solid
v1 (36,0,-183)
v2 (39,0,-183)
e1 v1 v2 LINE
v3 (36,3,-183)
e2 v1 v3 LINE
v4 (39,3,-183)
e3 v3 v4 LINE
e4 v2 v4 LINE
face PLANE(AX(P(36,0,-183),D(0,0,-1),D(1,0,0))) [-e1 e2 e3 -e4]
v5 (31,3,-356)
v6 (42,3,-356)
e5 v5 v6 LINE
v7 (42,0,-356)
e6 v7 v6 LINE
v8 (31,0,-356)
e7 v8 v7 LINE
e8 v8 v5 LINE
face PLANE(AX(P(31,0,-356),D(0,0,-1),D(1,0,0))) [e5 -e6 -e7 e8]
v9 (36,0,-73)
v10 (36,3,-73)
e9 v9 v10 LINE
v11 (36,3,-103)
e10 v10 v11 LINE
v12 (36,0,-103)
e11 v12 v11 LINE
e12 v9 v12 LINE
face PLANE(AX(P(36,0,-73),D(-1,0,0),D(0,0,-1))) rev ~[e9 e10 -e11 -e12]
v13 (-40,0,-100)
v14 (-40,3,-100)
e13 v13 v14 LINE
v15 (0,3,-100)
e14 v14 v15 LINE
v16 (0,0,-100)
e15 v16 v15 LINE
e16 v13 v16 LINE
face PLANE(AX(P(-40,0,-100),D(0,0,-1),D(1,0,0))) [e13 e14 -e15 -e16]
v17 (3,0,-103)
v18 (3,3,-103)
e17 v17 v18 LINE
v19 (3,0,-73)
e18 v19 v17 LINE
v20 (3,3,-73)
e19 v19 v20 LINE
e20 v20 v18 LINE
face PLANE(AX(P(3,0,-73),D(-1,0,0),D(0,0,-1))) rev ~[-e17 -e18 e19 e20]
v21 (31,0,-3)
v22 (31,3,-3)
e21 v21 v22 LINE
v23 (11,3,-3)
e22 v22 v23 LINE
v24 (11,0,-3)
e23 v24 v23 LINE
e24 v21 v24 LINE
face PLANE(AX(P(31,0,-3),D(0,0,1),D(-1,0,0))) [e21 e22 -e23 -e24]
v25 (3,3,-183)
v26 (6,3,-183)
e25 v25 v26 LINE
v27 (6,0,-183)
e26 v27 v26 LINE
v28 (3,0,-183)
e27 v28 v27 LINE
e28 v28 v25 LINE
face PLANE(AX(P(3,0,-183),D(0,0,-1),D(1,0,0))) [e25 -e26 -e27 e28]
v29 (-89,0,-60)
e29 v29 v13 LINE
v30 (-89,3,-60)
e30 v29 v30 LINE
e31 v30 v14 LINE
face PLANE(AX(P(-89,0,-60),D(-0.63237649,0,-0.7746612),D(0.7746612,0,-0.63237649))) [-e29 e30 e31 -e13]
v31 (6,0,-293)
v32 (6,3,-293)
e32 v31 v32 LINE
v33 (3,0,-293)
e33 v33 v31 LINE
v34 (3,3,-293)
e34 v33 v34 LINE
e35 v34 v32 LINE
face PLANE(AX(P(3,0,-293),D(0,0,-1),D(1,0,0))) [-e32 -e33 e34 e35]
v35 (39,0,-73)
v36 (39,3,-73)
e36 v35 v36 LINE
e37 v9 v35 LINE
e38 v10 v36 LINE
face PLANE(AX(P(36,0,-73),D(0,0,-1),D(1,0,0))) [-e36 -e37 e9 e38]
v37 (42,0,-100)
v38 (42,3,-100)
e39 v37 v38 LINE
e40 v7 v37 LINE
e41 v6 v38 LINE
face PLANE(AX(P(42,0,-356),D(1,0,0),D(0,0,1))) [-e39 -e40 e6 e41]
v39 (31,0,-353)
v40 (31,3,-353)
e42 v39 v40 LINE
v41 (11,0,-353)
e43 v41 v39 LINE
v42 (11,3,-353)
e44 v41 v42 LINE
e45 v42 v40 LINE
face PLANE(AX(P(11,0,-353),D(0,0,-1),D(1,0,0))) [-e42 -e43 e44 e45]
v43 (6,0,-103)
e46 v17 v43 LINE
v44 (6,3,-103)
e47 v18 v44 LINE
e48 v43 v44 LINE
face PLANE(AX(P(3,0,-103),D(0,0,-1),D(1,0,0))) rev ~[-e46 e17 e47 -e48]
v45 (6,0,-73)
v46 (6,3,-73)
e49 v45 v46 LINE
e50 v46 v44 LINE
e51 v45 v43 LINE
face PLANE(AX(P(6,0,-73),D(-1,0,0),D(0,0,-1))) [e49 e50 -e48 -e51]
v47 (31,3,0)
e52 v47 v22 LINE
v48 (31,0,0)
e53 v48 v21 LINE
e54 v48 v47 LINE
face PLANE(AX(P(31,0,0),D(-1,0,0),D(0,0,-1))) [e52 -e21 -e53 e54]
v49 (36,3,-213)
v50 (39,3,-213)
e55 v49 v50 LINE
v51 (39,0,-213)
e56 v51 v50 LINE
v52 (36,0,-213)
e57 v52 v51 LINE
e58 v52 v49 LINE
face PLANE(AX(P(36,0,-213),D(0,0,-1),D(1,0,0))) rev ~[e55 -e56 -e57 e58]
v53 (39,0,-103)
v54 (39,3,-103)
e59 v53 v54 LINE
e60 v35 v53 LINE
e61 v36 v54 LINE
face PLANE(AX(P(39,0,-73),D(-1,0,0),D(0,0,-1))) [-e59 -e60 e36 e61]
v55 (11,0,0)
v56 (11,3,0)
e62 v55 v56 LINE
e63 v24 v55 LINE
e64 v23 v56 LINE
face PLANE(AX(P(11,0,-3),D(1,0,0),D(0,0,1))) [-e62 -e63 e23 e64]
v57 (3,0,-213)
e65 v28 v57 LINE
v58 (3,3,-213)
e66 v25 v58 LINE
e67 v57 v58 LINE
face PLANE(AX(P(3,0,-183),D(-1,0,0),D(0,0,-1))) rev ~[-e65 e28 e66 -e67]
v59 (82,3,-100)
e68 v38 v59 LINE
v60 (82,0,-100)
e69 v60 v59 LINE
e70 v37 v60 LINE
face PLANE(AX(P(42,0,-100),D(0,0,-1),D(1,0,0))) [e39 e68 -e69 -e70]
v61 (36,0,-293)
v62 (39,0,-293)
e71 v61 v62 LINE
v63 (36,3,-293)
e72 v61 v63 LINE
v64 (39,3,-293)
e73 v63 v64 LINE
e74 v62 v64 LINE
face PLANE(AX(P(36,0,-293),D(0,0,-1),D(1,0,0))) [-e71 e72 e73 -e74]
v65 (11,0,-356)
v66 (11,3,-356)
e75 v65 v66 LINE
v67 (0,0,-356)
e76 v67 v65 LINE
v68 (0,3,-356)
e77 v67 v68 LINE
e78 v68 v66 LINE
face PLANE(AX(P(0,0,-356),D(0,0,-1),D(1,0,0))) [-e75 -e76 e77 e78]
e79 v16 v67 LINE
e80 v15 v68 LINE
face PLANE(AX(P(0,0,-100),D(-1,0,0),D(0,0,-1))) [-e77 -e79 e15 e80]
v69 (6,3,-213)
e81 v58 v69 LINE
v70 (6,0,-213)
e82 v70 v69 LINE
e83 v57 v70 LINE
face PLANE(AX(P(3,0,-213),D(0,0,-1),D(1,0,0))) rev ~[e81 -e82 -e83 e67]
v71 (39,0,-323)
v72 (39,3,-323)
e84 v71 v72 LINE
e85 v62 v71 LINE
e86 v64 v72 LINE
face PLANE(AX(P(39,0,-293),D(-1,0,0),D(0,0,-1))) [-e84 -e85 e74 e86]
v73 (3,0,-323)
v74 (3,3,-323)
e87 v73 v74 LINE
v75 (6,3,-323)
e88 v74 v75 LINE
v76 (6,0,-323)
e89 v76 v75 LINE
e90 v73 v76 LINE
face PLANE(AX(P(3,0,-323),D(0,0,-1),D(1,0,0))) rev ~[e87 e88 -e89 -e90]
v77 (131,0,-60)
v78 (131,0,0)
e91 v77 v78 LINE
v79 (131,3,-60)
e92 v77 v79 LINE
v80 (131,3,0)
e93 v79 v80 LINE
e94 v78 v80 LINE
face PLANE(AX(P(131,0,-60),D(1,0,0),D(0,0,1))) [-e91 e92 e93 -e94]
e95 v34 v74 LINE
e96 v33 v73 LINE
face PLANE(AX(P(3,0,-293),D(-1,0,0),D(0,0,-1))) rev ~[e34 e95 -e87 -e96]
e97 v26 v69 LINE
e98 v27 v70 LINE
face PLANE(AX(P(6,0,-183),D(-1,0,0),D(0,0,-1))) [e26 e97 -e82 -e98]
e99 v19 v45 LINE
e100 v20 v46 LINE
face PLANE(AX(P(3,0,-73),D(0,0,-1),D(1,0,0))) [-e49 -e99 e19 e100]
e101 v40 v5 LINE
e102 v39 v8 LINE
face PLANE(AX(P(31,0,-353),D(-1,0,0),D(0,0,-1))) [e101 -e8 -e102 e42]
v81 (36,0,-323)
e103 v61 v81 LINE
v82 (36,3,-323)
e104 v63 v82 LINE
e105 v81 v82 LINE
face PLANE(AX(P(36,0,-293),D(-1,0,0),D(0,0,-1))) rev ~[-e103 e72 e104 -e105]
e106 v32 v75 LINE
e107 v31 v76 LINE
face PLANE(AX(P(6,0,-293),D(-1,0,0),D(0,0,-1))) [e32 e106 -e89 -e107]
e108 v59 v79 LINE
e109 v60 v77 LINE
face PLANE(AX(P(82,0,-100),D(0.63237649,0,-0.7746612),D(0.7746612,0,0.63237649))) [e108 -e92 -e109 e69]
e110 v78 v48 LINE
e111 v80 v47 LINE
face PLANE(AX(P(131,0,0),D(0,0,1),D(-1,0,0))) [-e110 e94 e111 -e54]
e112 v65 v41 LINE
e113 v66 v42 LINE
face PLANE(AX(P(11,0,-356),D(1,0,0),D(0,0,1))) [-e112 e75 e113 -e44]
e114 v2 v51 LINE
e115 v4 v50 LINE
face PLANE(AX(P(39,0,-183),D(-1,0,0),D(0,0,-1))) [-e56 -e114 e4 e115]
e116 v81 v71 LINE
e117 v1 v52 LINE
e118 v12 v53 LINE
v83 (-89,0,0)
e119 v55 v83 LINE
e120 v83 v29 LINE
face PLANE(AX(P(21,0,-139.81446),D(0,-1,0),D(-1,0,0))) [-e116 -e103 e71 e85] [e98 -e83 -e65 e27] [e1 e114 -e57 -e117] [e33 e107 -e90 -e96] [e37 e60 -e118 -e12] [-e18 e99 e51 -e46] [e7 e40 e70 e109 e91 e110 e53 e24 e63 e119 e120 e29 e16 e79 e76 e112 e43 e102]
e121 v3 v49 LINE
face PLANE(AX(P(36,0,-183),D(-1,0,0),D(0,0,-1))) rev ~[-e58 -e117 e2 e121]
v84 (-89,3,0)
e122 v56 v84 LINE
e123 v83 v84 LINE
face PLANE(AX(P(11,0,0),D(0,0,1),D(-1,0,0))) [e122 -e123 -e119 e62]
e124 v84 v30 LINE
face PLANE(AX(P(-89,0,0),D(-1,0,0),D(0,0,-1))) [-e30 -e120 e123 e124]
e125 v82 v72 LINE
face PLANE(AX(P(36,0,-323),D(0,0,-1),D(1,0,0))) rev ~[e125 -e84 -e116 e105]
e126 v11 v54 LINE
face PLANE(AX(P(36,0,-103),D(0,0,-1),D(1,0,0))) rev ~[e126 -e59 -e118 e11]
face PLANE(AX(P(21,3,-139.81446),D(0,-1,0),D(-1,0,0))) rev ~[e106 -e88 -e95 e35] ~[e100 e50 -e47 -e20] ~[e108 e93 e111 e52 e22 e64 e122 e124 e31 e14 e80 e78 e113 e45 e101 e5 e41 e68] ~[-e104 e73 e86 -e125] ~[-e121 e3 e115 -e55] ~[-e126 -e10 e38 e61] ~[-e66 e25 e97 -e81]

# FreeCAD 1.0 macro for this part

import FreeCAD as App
import Part
import Sketcher
Q = App.Units.Quantity

doc = App.newDocument("Part")
body = doc.addObject("PartDesign::Body", "Body")

# Sketch on XZ plane
sketch1 = body.newObject("Sketcher::SketchObject", "Sketch")
sketch1.AttachmentSupport = (doc.getObject("XZ_Plane"), [""])
sketch1.MapMode = "FlatFace"
sketch1.addGeometry([
    Part.LineSegment(App.Vector(0, -356, 0), App.Vector(0, -100, 0)),  # 0
    Part.LineSegment(App.Vector(0, -100, 0), App.Vector(-40, -100, 0)),  # 1
    Part.LineSegment(App.Vector(-40, -100, 0), App.Vector(-89, -60, 0)),  # 2
    Part.LineSegment(App.Vector(-89, -60, 0), App.Vector(-89, 0, 0)),  # 3
    Part.LineSegment(App.Vector(-89, 0, 0), App.Vector(11, 0, 0)),  # 4
    Part.LineSegment(App.Vector(11, 0, 0), App.Vector(11, -3, 0)),  # 5
    Part.LineSegment(App.Vector(11, -3, 0), App.Vector(31, -3, 0)),  # 6
    Part.LineSegment(App.Vector(31, -3, 0), App.Vector(31, 0, 0)),  # 7
    Part.LineSegment(App.Vector(31, 0, 0), App.Vector(131, 0, 0)),  # 8
    Part.LineSegment(App.Vector(131, 0, 0), App.Vector(131, -60, 0)),  # 9
    Part.LineSegment(App.Vector(131, -60, 0), App.Vector(82, -100, 0)),  # 10
    Part.LineSegment(App.Vector(82, -100, 0), App.Vector(42, -100, 0)),  # 11
    Part.LineSegment(App.Vector(42, -100, 0), App.Vector(42, -356, 0)),  # 12
    Part.LineSegment(App.Vector(42, -356, 0), App.Vector(31, -356, 0)),  # 13
    Part.LineSegment(App.Vector(31, -356, 0), App.Vector(31, -353, 0)),  # 14
    Part.LineSegment(App.Vector(31, -353, 0), App.Vector(11, -353, 0)),  # 15
    Part.LineSegment(App.Vector(11, -353, 0), App.Vector(11, -356, 0)),  # 16
    Part.LineSegment(App.Vector(11, -356, 0), App.Vector(0, -356, 0)),  # 17
    Part.LineSegment(App.Vector(36, -73, 0), App.Vector(36, -103, 0)),  # 18
    Part.LineSegment(App.Vector(36, -103, 0), App.Vector(39, -103, 0)),  # 19
    Part.LineSegment(App.Vector(39, -103, 0), App.Vector(39, -73, 0)),  # 20
    Part.LineSegment(App.Vector(39, -73, 0), App.Vector(36, -73, 0)),  # 21
    Part.LineSegment(App.Vector(3, -73, 0), App.Vector(3, -103, 0)),  # 22
    Part.LineSegment(App.Vector(3, -103, 0), App.Vector(6, -103, 0)),  # 23
    Part.LineSegment(App.Vector(6, -103, 0), App.Vector(6, -73, 0)),  # 24
    Part.LineSegment(App.Vector(6, -73, 0), App.Vector(3, -73, 0)),  # 25
    Part.LineSegment(App.Vector(36, -183, 0), App.Vector(36, -213, 0)),  # 26
    Part.LineSegment(App.Vector(36, -213, 0), App.Vector(39, -213, 0)),  # 27
    Part.LineSegment(App.Vector(39, -213, 0), App.Vector(39, -183, 0)),  # 28
    Part.LineSegment(App.Vector(39, -183, 0), App.Vector(36, -183, 0)),  # 29
    Part.LineSegment(App.Vector(36, -293, 0), App.Vector(36, -323, 0)),  # 30
    Part.LineSegment(App.Vector(36, -323, 0), App.Vector(39, -323, 0)),  # 31
    Part.LineSegment(App.Vector(39, -323, 0), App.Vector(39, -293, 0)),  # 32
    Part.LineSegment(App.Vector(39, -293, 0), App.Vector(36, -293, 0)),  # 33
    Part.LineSegment(App.Vector(3, -183, 0), App.Vector(3, -213, 0)),  # 34
    Part.LineSegment(App.Vector(3, -213, 0), App.Vector(6, -213, 0)),  # 35
    Part.LineSegment(App.Vector(6, -213, 0), App.Vector(6, -183, 0)),  # 36
    Part.LineSegment(App.Vector(6, -183, 0), App.Vector(3, -183, 0)),  # 37
    Part.LineSegment(App.Vector(3, -293, 0), App.Vector(3, -323, 0)),  # 38
    Part.LineSegment(App.Vector(3, -323, 0), App.Vector(6, -323, 0)),  # 39
    Part.LineSegment(App.Vector(6, -323, 0), App.Vector(6, -293, 0)),  # 40
    Part.LineSegment(App.Vector(6, -293, 0), App.Vector(3, -293, 0)),  # 41
], False)
sketch1.addConstraint([
    Sketcher.Constraint("Coincident", 0, 2, 1, 1),
    Sketcher.Constraint("Coincident", 1, 2, 2, 1),
    Sketcher.Constraint("Coincident", 2, 2, 3, 1),
    Sketcher.Constraint("Coincident", 3, 2, 4, 1),
    Sketcher.Constraint("Coincident", 4, 2, 5, 1),
    Sketcher.Constraint("Coincident", 5, 2, 6, 1),
    Sketcher.Constraint("Coincident", 6, 2, 7, 1),
    Sketcher.Constraint("Coincident", 7, 2, 8, 1),
    Sketcher.Constraint("Coincident", 8, 2, 9, 1),
    Sketcher.Constraint("Coincident", 9, 2, 10, 1),
    Sketcher.Constraint("Coincident", 10, 2, 11, 1),
    Sketcher.Constraint("Coincident", 11, 2, 12, 1),
    Sketcher.Constraint("Coincident", 12, 2, 13, 1),
    Sketcher.Constraint("Coincident", 13, 2, 14, 1),
    Sketcher.Constraint("Coincident", 14, 2, 15, 1),
    Sketcher.Constraint("Coincident", 15, 2, 16, 1),
    Sketcher.Constraint("Coincident", 16, 2, 17, 1),
    Sketcher.Constraint("Coincident", 17, 2, 0, 1),
    Sketcher.Constraint("Coincident", 18, 2, 19, 1),
    Sketcher.Constraint("Coincident", 19, 2, 20, 1),
    Sketcher.Constraint("Coincident", 20, 2, 21, 1),
    Sketcher.Constraint("Coincident", 21, 2, 18, 1),
    Sketcher.Constraint("Coincident", 22, 2, 23, 1),
    Sketcher.Constraint("Coincident", 23, 2, 24, 1),
    Sketcher.Constraint("Coincident", 24, 2, 25, 1),
    Sketcher.Constraint("Coincident", 25, 2, 22, 1),
    Sketcher.Constraint("Coincident", 26, 2, 27, 1),
    Sketcher.Constraint("Coincident", 27, 2, 28, 1),
    Sketcher.Constraint("Coincident", 28, 2, 29, 1),
    Sketcher.Constraint("Coincident", 29, 2, 26, 1),
    Sketcher.Constraint("Coincident", 30, 2, 31, 1),
    Sketcher.Constraint("Coincident", 31, 2, 32, 1),
    Sketcher.Constraint("Coincident", 32, 2, 33, 1),
    Sketcher.Constraint("Coincident", 33, 2, 30, 1),
    Sketcher.Constraint("Coincident", 34, 2, 35, 1),
    Sketcher.Constraint("Coincident", 35, 2, 36, 1),
    Sketcher.Constraint("Coincident", 36, 2, 37, 1),
    Sketcher.Constraint("Coincident", 37, 2, 34, 1),
    Sketcher.Constraint("Coincident", 38, 2, 39, 1),
    Sketcher.Constraint("Coincident", 39, 2, 40, 1),
    Sketcher.Constraint("Coincident", 40, 2, 41, 1),
    Sketcher.Constraint("Coincident", 41, 2, 38, 1),
    Sketcher.Constraint("Vertical", 0),
    Sketcher.Constraint("Horizontal", 1),
    Sketcher.Constraint("Vertical", 3),
    Sketcher.Constraint("Horizontal", 4),
    Sketcher.Constraint("Vertical", 5),
    Sketcher.Constraint("Horizontal", 6),
    Sketcher.Constraint("Vertical", 7),
    Sketcher.Constraint("Horizontal", 8),
    Sketcher.Constraint("Vertical", 9),
    Sketcher.Constraint("Horizontal", 11),
    Sketcher.Constraint("Vertical", 12),
    Sketcher.Constraint("Horizontal", 13),
    Sketcher.Constraint("Vertical", 14),
    Sketcher.Constraint("Horizontal", 15),
    Sketcher.Constraint("Vertical", 16),
    Sketcher.Constraint("Horizontal", 17),
    Sketcher.Constraint("Vertical", 18),
    Sketcher.Constraint("Horizontal", 19),
    Sketcher.Constraint("Vertical", 20),
    Sketcher.Constraint("Horizontal", 21),
    Sketcher.Constraint("Vertical", 22),
    Sketcher.Constraint("Horizontal", 23),
    Sketcher.Constraint("Vertical", 24),
    Sketcher.Constraint("Horizontal", 25),
    Sketcher.Constraint("Vertical", 26),
    Sketcher.Constraint("Horizontal", 27),
    Sketcher.Constraint("Vertical", 28),
    Sketcher.Constraint("Horizontal", 29),
    Sketcher.Constraint("Vertical", 30),
    Sketcher.Constraint("Horizontal", 31),
    Sketcher.Constraint("Vertical", 32),
    Sketcher.Constraint("Horizontal", 33),
    Sketcher.Constraint("Vertical", 34),
    Sketcher.Constraint("Horizontal", 35),
    Sketcher.Constraint("Vertical", 36),
    Sketcher.Constraint("Horizontal", 37),
    Sketcher.Constraint("Vertical", 38),
    Sketcher.Constraint("Horizontal", 39),
    Sketcher.Constraint("Vertical", 40),
    Sketcher.Constraint("Horizontal", 41),
    Sketcher.Constraint("PointOnObject", 0, 2, -2),
    Sketcher.Constraint("PointOnObject", 3, 2, -1),
    Sketcher.Constraint("PointOnObject", 7, 2, -1),
    Sketcher.Constraint("Horizontal", 2, 2, 9, 2),
    Sketcher.Constraint("Horizontal", 1, 2, 10, 2),
    Sketcher.Constraint("Horizontal", 13, 2, 16, 2),
    Sketcher.Constraint("Horizontal", 19, 2, 22, 2),
    Sketcher.Constraint("Horizontal", 21, 2, 24, 2),
    Sketcher.Constraint("Horizontal", 27, 2, 34, 2),
    Sketcher.Constraint("Horizontal", 29, 2, 36, 2),
    Sketcher.Constraint("Horizontal", 31, 2, 38, 2),
    Sketcher.Constraint("Horizontal", 33, 2, 40, 2),
    Sketcher.Constraint("Vertical", 7, 2, 13, 2),
    Sketcher.Constraint("Vertical", 5, 2, 15, 2),
    Sketcher.Constraint("Vertical", 21, 2, 26, 2),
    Sketcher.Constraint("Vertical", 20, 2, 27, 2),
    Sketcher.Constraint("Vertical", 29, 2, 30, 2),
    Sketcher.Constraint("Vertical", 28, 2, 31, 2),
    Sketcher.Constraint("Vertical", 25, 2, 34, 2),
    Sketcher.Constraint("Vertical", 24, 2, 35, 2),
    Sketcher.Constraint("Vertical", 37, 2, 38, 2),
    Sketcher.Constraint("Vertical", 36, 2, 39, 2),
    Sketcher.Constraint("Equal", 4, 8),
    Sketcher.Constraint("Equal", 1, 11),
    Sketcher.Constraint("Equal", 13, 17),
    Sketcher.Constraint("Equal", 21, 23),
    Sketcher.Constraint("Equal", 41, 5),
    Sketcher.Constraint("Equal", 7, 14),
    Sketcher.Constraint("Equal", 24, 26),
    Sketcher.Constraint("Equal", 28, 30),
    Sketcher.Constraint("DistanceX", 1, 2, 1, 1, Q("40 mm")),
    Sketcher.Constraint("DistanceX", 4, 1, 4, 2, Q("100 mm")),
    Sketcher.Constraint("DistanceX", 6, 1, 6, 2, Q("20 mm")),
    Sketcher.Constraint("DistanceX", 13, 2, 13, 1, Q("11 mm")),
    Sketcher.Constraint("DistanceX", 19, 1, 19, 2, Q("3 mm")),
    Sketcher.Constraint("DistanceY", 0, 1, 0, 2, Q("256 mm")),
    Sketcher.Constraint("DistanceY", 3, 1, 3, 2, Q("60 mm")),
    Sketcher.Constraint("DistanceY", 18, 2, 18, 1, Q("30 mm")),
    Sketcher.Constraint("DistanceY", 0, 2, -1, 1, Q("100 mm")),
    Sketcher.Constraint("DistanceX", -1, 1, 18, 2, Q("36 mm")),
    Sketcher.Constraint("DistanceY", 18, 2, -1, 1, Q("103 mm")),
    Sketcher.Constraint("DistanceX", -1, 1, 22, 2, Q("3 mm")),
    Sketcher.Constraint("DistanceY", 26, 2, -1, 1, Q("213 mm")),
    Sketcher.Constraint("DistanceY", 30, 2, -1, 1, Q("323 mm")),
])
pad1 = body.newObject("PartDesign::Pad", "Pad")
pad1.Profile = sketch1
pad1.Length = 3
pad1.Reversed = True

doc.recompute()
